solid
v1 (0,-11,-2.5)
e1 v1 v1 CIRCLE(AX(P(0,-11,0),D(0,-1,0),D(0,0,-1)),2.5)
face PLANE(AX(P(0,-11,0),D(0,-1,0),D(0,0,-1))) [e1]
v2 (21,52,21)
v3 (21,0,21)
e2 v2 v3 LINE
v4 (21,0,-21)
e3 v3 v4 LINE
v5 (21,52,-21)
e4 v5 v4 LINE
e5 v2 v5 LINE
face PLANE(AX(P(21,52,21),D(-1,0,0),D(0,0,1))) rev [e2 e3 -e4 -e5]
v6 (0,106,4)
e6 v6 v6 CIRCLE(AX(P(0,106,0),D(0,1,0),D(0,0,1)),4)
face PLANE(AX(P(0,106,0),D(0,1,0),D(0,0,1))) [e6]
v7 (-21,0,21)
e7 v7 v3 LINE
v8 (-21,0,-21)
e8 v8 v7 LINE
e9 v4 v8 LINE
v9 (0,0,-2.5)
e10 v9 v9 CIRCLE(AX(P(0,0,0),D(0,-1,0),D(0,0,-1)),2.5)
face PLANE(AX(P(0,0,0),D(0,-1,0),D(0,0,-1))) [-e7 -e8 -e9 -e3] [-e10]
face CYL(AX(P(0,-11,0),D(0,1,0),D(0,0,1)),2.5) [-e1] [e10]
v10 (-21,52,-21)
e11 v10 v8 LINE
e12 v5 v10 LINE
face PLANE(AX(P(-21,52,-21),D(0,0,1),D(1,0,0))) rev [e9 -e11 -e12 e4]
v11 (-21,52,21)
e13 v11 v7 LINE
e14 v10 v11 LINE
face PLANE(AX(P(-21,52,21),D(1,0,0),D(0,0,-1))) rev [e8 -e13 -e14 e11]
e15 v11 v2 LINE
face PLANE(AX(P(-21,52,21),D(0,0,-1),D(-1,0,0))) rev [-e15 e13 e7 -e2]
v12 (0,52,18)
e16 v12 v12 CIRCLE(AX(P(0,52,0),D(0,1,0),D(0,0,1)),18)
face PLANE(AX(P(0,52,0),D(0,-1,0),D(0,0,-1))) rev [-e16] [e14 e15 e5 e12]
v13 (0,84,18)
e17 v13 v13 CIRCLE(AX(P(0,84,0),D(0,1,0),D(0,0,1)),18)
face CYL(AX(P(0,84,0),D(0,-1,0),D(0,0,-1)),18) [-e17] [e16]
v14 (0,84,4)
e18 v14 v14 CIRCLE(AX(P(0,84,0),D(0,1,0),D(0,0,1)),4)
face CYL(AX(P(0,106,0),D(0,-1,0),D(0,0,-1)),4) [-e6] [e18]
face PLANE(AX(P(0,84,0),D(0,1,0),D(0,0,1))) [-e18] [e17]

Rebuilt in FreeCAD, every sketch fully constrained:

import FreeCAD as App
import Part
import Sketcher
from FreeCAD import Vector


def add_polygon(sketch, points):
    """Adds a closed chain of lines whose ends are joined by coincident constraints."""
    first, n = sketch.GeometryCount, len(points)
    for a, b in zip(points, points[1:] + points[:1]):
        sketch.addGeometry(Part.LineSegment(App.Vector(*a, 0), App.Vector(*b, 0)), False)
    for i in range(n):
        sketch.addConstraint(Sketcher.Constraint("Coincident", first + i, 2, first + (i + 1) % n, 1))

doc = App.newDocument("Part")
body = doc.addObject("PartDesign::Body", "Body")

sketch1 = body.newObject("Sketcher::SketchObject", "Sketch")
sketch1.AttachmentSupport = (doc.getObject("XZ_Plane"), [""])
sketch1.MapMode = "FlatFace"
add_polygon(sketch1, [(-21, -21), (-21, 21), (21, 21), (21, -21)])
sketch1.addConstraint([
    Sketcher.Constraint("Vertical", 0),
    Sketcher.Constraint("Horizontal", 1),
    Sketcher.Constraint("Vertical", 2),
    Sketcher.Constraint("Horizontal", 3),
    Sketcher.Constraint("Symmetric", 0, 2, 2, 2, -1, 1),
    Sketcher.Constraint("Equal", 3, 0),
    Sketcher.Constraint("DistanceX", 1, 1, 1, 2, 42.0),
])
pad1 = body.newObject("PartDesign::Pad", "Pad")
pad1.Profile = sketch1
pad1.Length = 52
pad1.Reversed = True

sketch2 = body.newObject("Sketcher::SketchObject", "Sketch001")
sketch2.AttachmentSupport = (doc.getObject("XZ_Plane"), [""])
sketch2.MapMode = "FlatFace"
sketch2.AttachmentOffset = App.Placement(Vector(0, 0, -52), App.Rotation())
sketch2.addGeometry(Part.Circle(Vector(0, 0, 0), Vector(0, 0, 1), 18), False)
sketch2.addConstraint([
    Sketcher.Constraint("Coincident", 0, 3, -1, 1),
    Sketcher.Constraint("Diameter", 0, 36.0),
])
pad2 = body.newObject("PartDesign::Pad", "Pad001")
pad2.Profile = sketch2
pad2.Length = 32
pad2.Reversed = True

sketch3 = body.newObject("Sketcher::SketchObject", "Sketch002")
sketch3.AttachmentSupport = (doc.getObject("XZ_Plane"), [""])
sketch3.MapMode = "FlatFace"
sketch3.AttachmentOffset = App.Placement(Vector(0, 0, -84), App.Rotation())
sketch3.addGeometry(Part.Circle(Vector(0, 0, 0), Vector(0, 0, 1), 4), False)
sketch3.addConstraint([
    Sketcher.Constraint("Coincident", 0, 3, -1, 1),
    Sketcher.Constraint("Diameter", 0, 8.0),
])
pad3 = body.newObject("PartDesign::Pad", "Pad002")
pad3.Profile = sketch3
pad3.Length = 22
pad3.Reversed = True

sketch4 = body.newObject("Sketcher::SketchObject", "Sketch003")
sketch4.AttachmentSupport = (doc.getObject("XZ_Plane"), [""])
sketch4.MapMode = "FlatFace"
sketch4.addGeometry(Part.Circle(Vector(0, 0, 0), Vector(0, 0, 1), 2.5), False)
sketch4.addConstraint([
    Sketcher.Constraint("Coincident", 0, 3, -1, 1),
    Sketcher.Constraint("Diameter", 0, 5.0),
])
pad4 = body.newObject("PartDesign::Pad", "Pad003")
pad4.Profile = sketch4
pad4.Length = 11

doc.recompute()
